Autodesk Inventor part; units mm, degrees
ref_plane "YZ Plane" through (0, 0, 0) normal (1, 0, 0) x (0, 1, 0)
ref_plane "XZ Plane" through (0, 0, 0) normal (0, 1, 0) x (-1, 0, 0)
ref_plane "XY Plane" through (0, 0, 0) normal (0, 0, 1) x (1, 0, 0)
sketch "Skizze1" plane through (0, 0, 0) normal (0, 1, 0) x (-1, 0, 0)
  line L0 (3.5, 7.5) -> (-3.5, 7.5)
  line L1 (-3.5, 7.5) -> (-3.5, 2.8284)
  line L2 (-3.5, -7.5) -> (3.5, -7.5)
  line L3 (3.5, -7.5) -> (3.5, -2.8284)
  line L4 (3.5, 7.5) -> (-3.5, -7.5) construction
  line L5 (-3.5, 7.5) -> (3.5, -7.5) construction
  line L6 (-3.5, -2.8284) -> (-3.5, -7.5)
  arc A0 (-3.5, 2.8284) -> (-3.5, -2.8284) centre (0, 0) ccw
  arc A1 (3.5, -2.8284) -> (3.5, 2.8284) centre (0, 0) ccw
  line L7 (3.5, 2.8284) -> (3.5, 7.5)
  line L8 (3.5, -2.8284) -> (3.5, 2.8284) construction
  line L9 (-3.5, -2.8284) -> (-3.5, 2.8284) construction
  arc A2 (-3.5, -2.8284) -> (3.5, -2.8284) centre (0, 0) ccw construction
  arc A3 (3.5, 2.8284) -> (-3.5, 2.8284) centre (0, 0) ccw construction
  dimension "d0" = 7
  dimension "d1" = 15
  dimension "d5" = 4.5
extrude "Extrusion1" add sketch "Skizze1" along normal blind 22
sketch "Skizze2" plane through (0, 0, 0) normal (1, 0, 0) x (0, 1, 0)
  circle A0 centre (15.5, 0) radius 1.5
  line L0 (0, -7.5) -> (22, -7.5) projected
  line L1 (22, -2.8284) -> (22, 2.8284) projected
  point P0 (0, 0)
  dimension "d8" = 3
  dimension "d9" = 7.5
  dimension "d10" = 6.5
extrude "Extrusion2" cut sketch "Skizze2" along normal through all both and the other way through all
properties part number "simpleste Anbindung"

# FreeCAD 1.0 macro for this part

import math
import FreeCAD as App
import Part
import Sketcher

V = App.Vector
Q = App.Units.Quantity

doc = App.newDocument("Part")
params = doc.addObject("Spreadsheet::Sheet", "Params")
for row, (alias, value) in enumerate([
    ("sketch1_radius", "4.5 mm"),
    ("sketch1_width", "7 mm"),
    ("pad1_length", "22 mm"),
    ("sketch2_diameter", "3 mm"),
], start=1):
    params.set(f"A{row}", alias)
    params.set(f"B{row}", "=" + value)
    params.setAlias(f"B{row}", alias)

body = doc.addObject("PartDesign::Body", "Body")

sketch1 = body.newObject("Sketcher::SketchObject", "Sketch")
sketch1.AttachmentSupport = (doc.getObject("XZ_Plane"), [""])
sketch1.MapMode = "FlatFace"
sketch1.addGeometry(Part.LineSegment(V(-3.5, 2.8, 0), V(-3.5, 7.5, 0)), False)
sketch1.addGeometry(Part.LineSegment(V(-3.5, 7.5, 0), V(3.5, 7.5, 0)), False)
sketch1.addGeometry(Part.LineSegment(V(3.5, 7.5, 0), V(3.5, 2.8, 0)), False)
sketch1.addGeometry(Part.ArcOfCircle(Part.Circle(V(0, 0, 0), V(0, 0, 1), 4.5), math.radians(-39), math.radians(39)), False)
sketch1.addGeometry(Part.LineSegment(V(3.5, -2.8, 0), V(3.5, -7.5, 0)), False)
sketch1.addGeometry(Part.LineSegment(V(3.5, -7.5, 0), V(-3.5, -7.5, 0)), False)
sketch1.addGeometry(Part.LineSegment(V(-3.5, -7.5, 0), V(-3.5, -2.8, 0)), False)
sketch1.addGeometry(Part.ArcOfCircle(Part.Circle(V(0, 0, 0), V(0, 0, 1), 4.5), math.radians(141), math.radians(219)), False)
sketch1.addConstraint(Sketcher.Constraint("Coincident", 0, 2, 1, 1))
sketch1.addConstraint(Sketcher.Constraint("Coincident", 1, 2, 2, 1))
sketch1.addConstraint(Sketcher.Constraint("Coincident", 2, 2, 3, 2))
sketch1.addConstraint(Sketcher.Constraint("Coincident", 3, 1, 4, 1))
sketch1.addConstraint(Sketcher.Constraint("Coincident", 4, 2, 5, 1))
sketch1.addConstraint(Sketcher.Constraint("Coincident", 5, 2, 6, 1))
sketch1.addConstraint(Sketcher.Constraint("Coincident", 6, 2, 7, 2))
sketch1.addConstraint(Sketcher.Constraint("Coincident", 7, 1, 0, 1))
sketch1.addConstraint(Sketcher.Constraint("Vertical", 0))
sketch1.addConstraint(Sketcher.Constraint("Horizontal", 1))
sketch1.addConstraint(Sketcher.Constraint("Vertical", 2))
sketch1.addConstraint(Sketcher.Constraint("Vertical", 4))
sketch1.addConstraint(Sketcher.Constraint("Horizontal", 5))
sketch1.addConstraint(Sketcher.Constraint("Vertical", 6))
sketch1.addConstraint(Sketcher.Constraint("Coincident", 3, 3, -1, 1))
sketch1.addConstraint(Sketcher.Constraint("Coincident", 7, 3, -1, 1))
sketch1.addConstraint(Sketcher.Constraint("Equal", 3, 7))
sketch1.addConstraint(Sketcher.Constraint("Symmetric", 0, 2, 4, 2, -1, 1))
sketch1.addConstraint(Sketcher.Constraint("Horizontal", 3, 1, 6, 2))
sketch1.addConstraint(Sketcher.Constraint("Horizontal", 2, 2, 7, 1))
sketch1.addConstraint(Sketcher.Constraint("Radius", 3, Q("4.5 mm")))
sketch1.addConstraint(Sketcher.Constraint("DistanceX", 1, 1, 1, 2, Q("7 mm")))
sketch1.addConstraint(Sketcher.Constraint("DistanceY", 4, 2, 1, 2, Q("15 mm")))
sketch1.setExpression("Constraints[20]", "Params.sketch1_radius")
sketch1.setExpression("Constraints[21]", "Params.sketch1_width")
pad1 = body.newObject("PartDesign::Pad", "Pad")
pad1.Profile = sketch1
pad1.setExpression("Length", "Params.pad1_length")
pad1.Reversed = True

sketch2 = body.newObject("Sketcher::SketchObject", "Sketch001")
sketch2.AttachmentSupport = (doc.getObject("YZ_Plane"), [""])
sketch2.MapMode = "FlatFace"
sketch2.addGeometry(Part.Circle(V(15.5, 0, 0), V(0, 0, 1), 1.5), False)
sketch2.addConstraint(Sketcher.Constraint("PointOnObject", 0, 3, -1))
sketch2.addConstraint(Sketcher.Constraint("Diameter", 0, Q("3 mm")))
sketch2.addConstraint(Sketcher.Constraint("DistanceX", -1, 1, 0, 3, Q("15.5 mm")))
sketch2.setExpression("Constraints[1]", "Params.sketch2_diameter")
pocket1 = body.newObject("PartDesign::Pocket", "Pocket")
pocket1.Profile = sketch2
pocket1.Type = "ThroughAll"
pocket1.Midplane = True

doc.recompute()
